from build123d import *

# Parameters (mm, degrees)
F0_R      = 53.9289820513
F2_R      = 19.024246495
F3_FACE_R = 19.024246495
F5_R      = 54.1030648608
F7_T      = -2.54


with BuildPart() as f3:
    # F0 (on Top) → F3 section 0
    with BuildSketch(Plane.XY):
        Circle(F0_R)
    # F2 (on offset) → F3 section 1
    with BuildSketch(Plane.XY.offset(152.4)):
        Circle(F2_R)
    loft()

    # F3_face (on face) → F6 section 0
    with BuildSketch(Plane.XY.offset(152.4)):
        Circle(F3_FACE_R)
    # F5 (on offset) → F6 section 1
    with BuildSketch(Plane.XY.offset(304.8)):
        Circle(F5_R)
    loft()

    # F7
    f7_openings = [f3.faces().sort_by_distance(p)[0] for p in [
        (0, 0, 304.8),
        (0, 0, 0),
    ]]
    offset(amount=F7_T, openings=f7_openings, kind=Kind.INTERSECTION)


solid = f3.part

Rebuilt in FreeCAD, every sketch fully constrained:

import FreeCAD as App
import Part
import Sketcher
Q = App.Units.Quantity


def faces_at(feature, points):
    """Names of the faces that lie closest to the given points."""
    faces = feature.Shape.Faces
    near = lambda p: min(range(len(faces)), key=lambda i: faces[i].distToShape(Part.Vertex(*p))[0])
    return sorted({f"Face{near(p) + 1}" for p in points})

doc = App.newDocument("Part")
body = doc.addObject("PartDesign::Body", "Body")

sketch1 = body.newObject("Sketcher::SketchObject", "Sketch")
sketch1.AttachmentSupport = (doc.getObject("XY_Plane"), [""])
sketch1.MapMode = "FlatFace"
sketch1.addGeometry(Part.Circle(App.Vector(0, 0, 0), App.Vector(0, 0, 1), 54), False)
sketch1.addConstraint([
    Sketcher.Constraint("Coincident", 0, 3, -1, 1),
    Sketcher.Constraint("Diameter", 0, Q("107.857964 mm")),
])

sketch2 = body.newObject("Sketcher::SketchObject", "Sketch001")
sketch2.AttachmentSupport = (doc.getObject("XY_Plane"), [""])
sketch2.MapMode = "FlatFace"
sketch2.AttachmentOffset = App.Placement(App.Vector(0, 0, 6 * 25.4), App.Rotation())
sketch2.addGeometry(Part.Circle(App.Vector(0, 0, 0), App.Vector(0, 0, 1), 19), False)
sketch2.addConstraint([
    Sketcher.Constraint("Coincident", 0, 3, -1, 1),
    Sketcher.Constraint("Diameter", 0, Q("38.048493 mm")),
])

additiveloft = body.newObject("PartDesign::AdditiveLoft", "AdditiveLoft")
additiveloft.Profile = sketch1
additiveloft.Sections = [sketch2]

sketch3 = body.newObject("Sketcher::SketchObject", "Sketch002")
sketch3.AttachmentSupport = (doc.getObject("XY_Plane"), [""])
sketch3.MapMode = "FlatFace"
sketch3.AttachmentOffset = App.Placement(App.Vector(0, 0, 6 * 25.4), App.Rotation())
sketch3.addGeometry(Part.Circle(App.Vector(0, 0, 0), App.Vector(0, 0, 1), 19), False)
sketch3.addConstraint([
    Sketcher.Constraint("Coincident", 0, 3, -1, 1),
    Sketcher.Constraint("Diameter", 0, Q("38.048493 mm")),
])

sketch4 = body.newObject("Sketcher::SketchObject", "Sketch003")
sketch4.AttachmentSupport = (doc.getObject("XY_Plane"), [""])
sketch4.MapMode = "FlatFace"
sketch4.AttachmentOffset = App.Placement(App.Vector(0, 0, 12 * 25.4), App.Rotation())
sketch4.addGeometry(Part.Circle(App.Vector(0, 0, 0), App.Vector(0, 0, 1), 54), False)
sketch4.addConstraint([
    Sketcher.Constraint("Coincident", 0, 3, -1, 1),
    Sketcher.Constraint("Diameter", 0, Q("108.20613 mm")),
])

additiveloft2 = body.newObject("PartDesign::AdditiveLoft", "AdditiveLoft001")
additiveloft2.Profile = sketch3
additiveloft2.Sections = [sketch4]
doc.recompute()

thickness = body.newObject("PartDesign::Thickness", "Thickness")
thickness.Base = (additiveloft2, faces_at(additiveloft2, [(0, 0, 304.8), (0, 0, 0)]))
thickness.Value = Q("0.1 in")
thickness.Reversed = True
thickness.Join = "Intersection"

doc.recompute()
